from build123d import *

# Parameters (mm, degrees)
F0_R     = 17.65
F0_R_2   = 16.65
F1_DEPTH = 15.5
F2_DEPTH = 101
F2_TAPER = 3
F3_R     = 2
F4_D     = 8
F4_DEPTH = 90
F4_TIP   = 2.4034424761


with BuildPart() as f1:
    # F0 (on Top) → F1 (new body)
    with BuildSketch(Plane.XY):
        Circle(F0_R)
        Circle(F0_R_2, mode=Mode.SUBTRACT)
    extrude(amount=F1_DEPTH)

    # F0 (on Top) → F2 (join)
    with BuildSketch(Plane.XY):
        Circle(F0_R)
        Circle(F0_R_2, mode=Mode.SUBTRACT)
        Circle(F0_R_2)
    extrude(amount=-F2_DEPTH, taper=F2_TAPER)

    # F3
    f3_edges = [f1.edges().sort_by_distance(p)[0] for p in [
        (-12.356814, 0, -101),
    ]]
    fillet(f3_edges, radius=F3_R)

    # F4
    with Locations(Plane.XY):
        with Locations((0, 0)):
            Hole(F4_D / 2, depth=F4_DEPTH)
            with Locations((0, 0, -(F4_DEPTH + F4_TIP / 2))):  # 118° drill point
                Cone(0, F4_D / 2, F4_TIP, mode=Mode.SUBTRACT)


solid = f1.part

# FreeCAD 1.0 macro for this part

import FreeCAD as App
import Part
import Sketcher

V = App.Vector
Q = App.Units.Quantity


def edges_at(feature, points):
    """Names of the edges that pass closest to the given points."""
    edges = feature.Shape.Edges
    near = lambda p: min(range(len(edges)), key=lambda i: edges[i].distToShape(Part.Vertex(*p))[0])
    return sorted({f"Edge{near(p) + 1}" for p in points})

doc = App.newDocument("Part")
body = doc.addObject("PartDesign::Body", "Body")

# Sketch on XY plane
sketch1 = body.newObject("Sketcher::SketchObject", "Sketch")
sketch1.AttachmentSupport = (doc.getObject("XY_Plane"), [""])
sketch1.MapMode = "FlatFace"
sketch1.addGeometry([
    Part.Circle(V(0, 0, 0), V(0, 0, 1), 18),
    Part.Circle(V(0, 0, 0), V(0, 0, 1), 17),
], False)
sketch1.addConstraint([
    Sketcher.Constraint("Coincident", 0, 3, -1, 1),
    Sketcher.Constraint("Coincident", 1, 3, -1, 1),
    Sketcher.Constraint("Diameter", 0, Q("35.3 mm")),
    Sketcher.Constraint("Diameter", 1, Q("33.3 mm")),
])
pad1 = body.newObject("PartDesign::Pad", "Pad")
pad1.Profile = sketch1
pad1.Length = 15.5

# Sketch on XY plane
sketch2 = body.newObject("Sketcher::SketchObject", "Sketch001")
sketch2.AttachmentSupport = (doc.getObject("XY_Plane"), [""])
sketch2.MapMode = "FlatFace"
sketch2.addGeometry(Part.Circle(V(0, 0, 0), V(0, 0, 1), 18), False)
sketch2.addConstraint([
    Sketcher.Constraint("Coincident", 0, 3, -1, 1),
    Sketcher.Constraint("Diameter", 0, Q("35.3 mm")),
])
pad2 = body.newObject("PartDesign::Pad", "Pad001")
pad2.Profile = sketch2
pad2.Length = 101
pad2.Reversed = True
pad2.TaperAngle = -3
doc.recompute()

fillet = body.newObject("PartDesign::Fillet", "Fillet")
fillet.Base = (pad2, edges_at(pad2, [(-12.357, 0, -101)]))
fillet.Radius = 2

# Sketch on XY plane
sketch3 = body.newObject("Sketcher::SketchObject", "Sketch002")
sketch3.AttachmentSupport = (doc.getObject("XY_Plane"), [""])
sketch3.MapMode = "FlatFace"
sketch3.addGeometry(Part.Circle(V(0, 0, 0), V(0, 0, 1), 4), False)
sketch3.addConstraint([
    Sketcher.Constraint("Coincident", 0, 3, -1, 1),
    Sketcher.Constraint("Diameter", 0, Q("8 mm")),
])
doc.recompute()
hole = body.newObject("PartDesign::Hole", "Hole")
hole.Profile = sketch3
hole.ThreadType = "None"
hole.Diameter = 8
hole.DepthType = "Dimension"
hole.Depth = 90
hole.DrillPoint = "Angled"
hole.DrillPointAngle = 118

doc.recompute()
